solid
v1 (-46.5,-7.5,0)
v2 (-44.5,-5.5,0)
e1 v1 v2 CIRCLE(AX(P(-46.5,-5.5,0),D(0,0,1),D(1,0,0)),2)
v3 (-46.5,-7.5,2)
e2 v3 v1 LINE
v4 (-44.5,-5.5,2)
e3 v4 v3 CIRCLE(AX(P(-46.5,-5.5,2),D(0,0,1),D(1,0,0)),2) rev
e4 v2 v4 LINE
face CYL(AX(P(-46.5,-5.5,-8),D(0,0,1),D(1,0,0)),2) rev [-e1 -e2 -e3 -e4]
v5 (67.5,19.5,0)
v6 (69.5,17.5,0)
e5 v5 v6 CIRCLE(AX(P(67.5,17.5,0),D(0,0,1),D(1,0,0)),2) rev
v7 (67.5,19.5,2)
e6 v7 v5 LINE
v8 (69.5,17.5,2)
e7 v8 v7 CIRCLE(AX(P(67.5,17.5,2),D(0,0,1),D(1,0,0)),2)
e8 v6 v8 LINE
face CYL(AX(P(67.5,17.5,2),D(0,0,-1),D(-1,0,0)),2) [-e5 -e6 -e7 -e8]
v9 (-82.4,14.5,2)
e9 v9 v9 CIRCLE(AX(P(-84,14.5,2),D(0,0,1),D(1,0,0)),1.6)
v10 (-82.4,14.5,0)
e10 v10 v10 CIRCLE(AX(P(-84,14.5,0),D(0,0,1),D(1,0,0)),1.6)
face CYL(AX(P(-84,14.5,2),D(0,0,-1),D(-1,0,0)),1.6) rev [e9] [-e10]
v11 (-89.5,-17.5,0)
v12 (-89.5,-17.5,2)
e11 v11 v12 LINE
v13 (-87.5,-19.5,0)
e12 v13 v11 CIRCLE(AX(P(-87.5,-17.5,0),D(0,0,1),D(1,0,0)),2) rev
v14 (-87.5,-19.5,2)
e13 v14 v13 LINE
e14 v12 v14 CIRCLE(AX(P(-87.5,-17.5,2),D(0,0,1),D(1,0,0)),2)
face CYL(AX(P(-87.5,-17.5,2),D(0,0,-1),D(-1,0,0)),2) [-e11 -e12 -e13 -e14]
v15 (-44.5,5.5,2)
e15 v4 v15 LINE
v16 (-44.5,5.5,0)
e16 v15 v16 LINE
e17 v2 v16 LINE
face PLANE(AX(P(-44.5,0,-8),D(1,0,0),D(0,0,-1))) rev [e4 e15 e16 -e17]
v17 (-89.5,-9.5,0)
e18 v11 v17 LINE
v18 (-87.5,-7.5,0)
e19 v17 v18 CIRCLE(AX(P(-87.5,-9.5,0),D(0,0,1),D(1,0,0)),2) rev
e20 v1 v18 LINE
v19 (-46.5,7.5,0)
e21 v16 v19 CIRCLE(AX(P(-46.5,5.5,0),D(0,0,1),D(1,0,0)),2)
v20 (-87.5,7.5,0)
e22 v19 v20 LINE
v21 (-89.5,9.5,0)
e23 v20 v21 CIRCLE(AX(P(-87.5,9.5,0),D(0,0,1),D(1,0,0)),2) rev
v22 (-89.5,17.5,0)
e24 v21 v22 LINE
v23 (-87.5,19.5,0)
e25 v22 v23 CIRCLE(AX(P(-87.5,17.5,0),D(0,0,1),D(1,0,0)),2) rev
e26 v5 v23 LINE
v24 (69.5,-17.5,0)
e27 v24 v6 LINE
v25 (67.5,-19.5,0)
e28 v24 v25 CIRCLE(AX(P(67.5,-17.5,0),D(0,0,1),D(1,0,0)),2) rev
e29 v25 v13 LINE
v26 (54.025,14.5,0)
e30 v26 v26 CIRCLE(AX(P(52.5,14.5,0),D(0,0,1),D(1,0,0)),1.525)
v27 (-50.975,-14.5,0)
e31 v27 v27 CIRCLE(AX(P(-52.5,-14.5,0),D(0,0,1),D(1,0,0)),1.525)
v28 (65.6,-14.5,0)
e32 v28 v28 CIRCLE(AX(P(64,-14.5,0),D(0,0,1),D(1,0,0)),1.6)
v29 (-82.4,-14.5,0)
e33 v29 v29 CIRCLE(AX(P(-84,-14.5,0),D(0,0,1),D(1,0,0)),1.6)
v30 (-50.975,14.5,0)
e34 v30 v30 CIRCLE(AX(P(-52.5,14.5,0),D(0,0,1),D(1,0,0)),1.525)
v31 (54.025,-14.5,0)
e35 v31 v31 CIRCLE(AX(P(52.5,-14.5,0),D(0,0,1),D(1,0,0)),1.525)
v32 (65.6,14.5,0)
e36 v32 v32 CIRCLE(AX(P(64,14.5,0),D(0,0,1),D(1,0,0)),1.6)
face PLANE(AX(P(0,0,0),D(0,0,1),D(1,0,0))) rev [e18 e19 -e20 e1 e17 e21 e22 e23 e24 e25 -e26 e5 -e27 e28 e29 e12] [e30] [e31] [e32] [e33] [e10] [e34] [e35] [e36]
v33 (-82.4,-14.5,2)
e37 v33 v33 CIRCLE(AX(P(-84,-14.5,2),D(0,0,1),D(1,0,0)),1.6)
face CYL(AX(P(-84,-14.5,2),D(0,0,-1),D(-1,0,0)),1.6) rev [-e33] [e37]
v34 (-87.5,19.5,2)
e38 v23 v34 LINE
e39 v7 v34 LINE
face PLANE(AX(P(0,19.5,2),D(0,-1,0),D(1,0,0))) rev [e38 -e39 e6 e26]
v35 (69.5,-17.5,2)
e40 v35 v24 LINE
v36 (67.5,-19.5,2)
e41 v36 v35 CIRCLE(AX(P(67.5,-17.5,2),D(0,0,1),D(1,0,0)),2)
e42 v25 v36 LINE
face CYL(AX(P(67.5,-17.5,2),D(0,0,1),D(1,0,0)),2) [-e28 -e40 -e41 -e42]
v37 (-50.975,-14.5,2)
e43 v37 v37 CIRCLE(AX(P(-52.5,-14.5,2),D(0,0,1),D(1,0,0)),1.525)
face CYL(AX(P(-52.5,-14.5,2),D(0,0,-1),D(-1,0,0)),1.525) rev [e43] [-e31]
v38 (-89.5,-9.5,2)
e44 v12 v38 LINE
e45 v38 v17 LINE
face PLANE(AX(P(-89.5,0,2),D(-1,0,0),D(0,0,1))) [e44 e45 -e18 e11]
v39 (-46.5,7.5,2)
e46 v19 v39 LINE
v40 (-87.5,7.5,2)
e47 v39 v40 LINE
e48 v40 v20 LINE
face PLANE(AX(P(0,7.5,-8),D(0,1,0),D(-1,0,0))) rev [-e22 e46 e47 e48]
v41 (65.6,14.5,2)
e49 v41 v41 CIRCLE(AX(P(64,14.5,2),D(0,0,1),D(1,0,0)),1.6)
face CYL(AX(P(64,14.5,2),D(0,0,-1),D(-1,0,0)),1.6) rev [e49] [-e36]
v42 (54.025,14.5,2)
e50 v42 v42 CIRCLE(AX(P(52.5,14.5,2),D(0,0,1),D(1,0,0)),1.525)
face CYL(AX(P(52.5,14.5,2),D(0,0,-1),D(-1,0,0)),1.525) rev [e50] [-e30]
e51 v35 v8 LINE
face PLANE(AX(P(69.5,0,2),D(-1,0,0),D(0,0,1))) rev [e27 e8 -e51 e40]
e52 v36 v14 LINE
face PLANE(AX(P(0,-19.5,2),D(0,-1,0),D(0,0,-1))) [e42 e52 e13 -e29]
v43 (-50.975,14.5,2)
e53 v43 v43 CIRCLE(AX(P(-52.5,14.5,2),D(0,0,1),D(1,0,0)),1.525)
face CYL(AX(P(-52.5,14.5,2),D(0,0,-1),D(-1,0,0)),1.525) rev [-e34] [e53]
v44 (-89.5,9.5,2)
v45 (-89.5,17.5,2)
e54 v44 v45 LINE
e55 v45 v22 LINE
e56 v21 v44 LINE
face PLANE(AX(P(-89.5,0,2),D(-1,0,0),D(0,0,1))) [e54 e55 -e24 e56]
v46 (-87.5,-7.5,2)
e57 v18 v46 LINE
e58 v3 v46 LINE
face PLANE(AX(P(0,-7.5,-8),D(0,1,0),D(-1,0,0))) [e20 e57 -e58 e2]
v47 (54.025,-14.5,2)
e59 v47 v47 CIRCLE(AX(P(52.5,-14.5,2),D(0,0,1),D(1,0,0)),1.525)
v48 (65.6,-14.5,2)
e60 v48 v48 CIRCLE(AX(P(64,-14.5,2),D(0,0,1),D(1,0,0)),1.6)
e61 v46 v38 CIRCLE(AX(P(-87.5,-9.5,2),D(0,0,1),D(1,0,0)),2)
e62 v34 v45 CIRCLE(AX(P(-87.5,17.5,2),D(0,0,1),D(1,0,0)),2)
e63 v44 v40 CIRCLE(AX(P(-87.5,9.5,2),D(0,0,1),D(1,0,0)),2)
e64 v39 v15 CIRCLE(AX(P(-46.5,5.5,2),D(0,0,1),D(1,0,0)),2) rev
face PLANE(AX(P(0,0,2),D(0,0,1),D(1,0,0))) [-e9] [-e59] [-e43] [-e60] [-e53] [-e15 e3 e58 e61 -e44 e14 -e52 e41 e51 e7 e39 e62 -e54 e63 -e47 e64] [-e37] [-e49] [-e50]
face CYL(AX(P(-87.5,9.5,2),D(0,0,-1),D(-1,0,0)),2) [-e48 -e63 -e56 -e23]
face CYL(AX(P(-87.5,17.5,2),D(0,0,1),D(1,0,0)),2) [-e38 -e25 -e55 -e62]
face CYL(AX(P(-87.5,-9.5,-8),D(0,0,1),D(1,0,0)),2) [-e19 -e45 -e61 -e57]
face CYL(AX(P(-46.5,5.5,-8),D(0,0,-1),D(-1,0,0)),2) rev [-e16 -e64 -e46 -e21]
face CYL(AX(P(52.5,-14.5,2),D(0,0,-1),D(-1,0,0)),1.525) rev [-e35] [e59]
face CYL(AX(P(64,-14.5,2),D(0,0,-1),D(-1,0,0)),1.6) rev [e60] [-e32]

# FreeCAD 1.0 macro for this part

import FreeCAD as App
import Part
import Sketcher
from FreeCAD import Vector


def edges_at(feature, points):
    """Names of the edges that pass closest to the given points."""
    edges = feature.Shape.Edges
    near = lambda p: min(range(len(edges)), key=lambda i: edges[i].distToShape(Part.Vertex(*p))[0])
    return sorted({f"Edge{near(p) + 1}" for p in points})

doc = App.newDocument("Part")
body = doc.addObject("PartDesign::Body", "Body")

sketch1 = doc.addObject("Sketcher::SketchObject", "Sketch")
body.addObject(sketch1)
sketch1.AttachmentSupport = (doc.XY_Plane, [""])
sketch1.MapMode = "FlatFace"
sketch1.addGeometry(Part.LineSegment(Vector(-89.5, 19.5, 0), Vector(-89.5, -19.5, 0)), False)
sketch1.addGeometry(Part.LineSegment(Vector(-89.5, -19.5, 0), Vector(69.5, -19.5, 0)), False)
sketch1.addGeometry(Part.LineSegment(Vector(69.5, -19.5, 0), Vector(69.5, 19.5, 0)), False)
sketch1.addGeometry(Part.LineSegment(Vector(69.5, 19.5, 0), Vector(-89.5, 19.5, 0)), False)
sketch1.addGeometry(Part.Circle(Vector(-84, -14.5, 0), Vector(0, 0, 1), 1.6), False)
sketch1.addGeometry(Part.Circle(Vector(-84, 14.5, 0), Vector(0, 0, 1), 1.6), False)
sketch1.addGeometry(Part.Circle(Vector(52.5, 14.5, 0), Vector(0, 0, 1), 1.5), False)
sketch1.addGeometry(Part.Circle(Vector(-52.5, -14.5, 0), Vector(0, 0, 1), 1.5), False)
sketch1.addGeometry(Part.Circle(Vector(52.5, -14.5, 0), Vector(0, 0, 1), 1.5), False)
sketch1.addGeometry(Part.Circle(Vector(-52.5, 14.5, 0), Vector(0, 0, 1), 1.5), False)
sketch1.addGeometry(Part.Circle(Vector(64, 14.5, 0), Vector(0, 0, 1), 1.6), False)
sketch1.addGeometry(Part.Circle(Vector(64, -14.5, 0), Vector(0, 0, 1), 1.6), False)
sketch1.addConstraint(Sketcher.Constraint("Coincident", 0, 2, 1, 1))
sketch1.addConstraint(Sketcher.Constraint("Coincident", 1, 2, 2, 1))
sketch1.addConstraint(Sketcher.Constraint("Coincident", 2, 2, 3, 1))
sketch1.addConstraint(Sketcher.Constraint("Coincident", 3, 2, 0, 1))
sketch1.addConstraint(Sketcher.Constraint("Vertical", 0))
sketch1.addConstraint(Sketcher.Constraint("Horizontal", 1))
sketch1.addConstraint(Sketcher.Constraint("Vertical", 2))
sketch1.addConstraint(Sketcher.Constraint("Horizontal", 3))
sketch1.addConstraint(Sketcher.Constraint("Equal", 4, 5))
sketch1.addConstraint(Sketcher.Constraint("Equal", 6, 7))
sketch1.addConstraint(Sketcher.Constraint("Equal", 7, 8))
sketch1.addConstraint(Sketcher.Constraint("Equal", 8, 9))
sketch1.addConstraint(Sketcher.Constraint("Equal", 5, 10))
sketch1.addConstraint(Sketcher.Constraint("Equal", 10, 11))
sketch1.addConstraint(Sketcher.Constraint("Symmetric", 6, 3, 7, 3, -1, 1))
sketch1.addConstraint(Sketcher.Constraint("Symmetric", 8, 3, 9, 3, -1, 1))
sketch1.addConstraint(Sketcher.Constraint("Symmetric", 7, 3, 8, 3, -2))
sketch1.addConstraint(Sketcher.Constraint("Symmetric", 4, 3, 5, 3, -1))
sketch1.addConstraint(Sketcher.Constraint("Symmetric", 10, 3, 11, 3, -1))
sketch1.addConstraint(Sketcher.Constraint("Horizontal", 5, 3, 6, 3))
sketch1.addConstraint(Sketcher.Constraint("Horizontal", 9, 3, 10, 3))
sketch1.addConstraint(Sketcher.Constraint("Diameter", 4, 3.2))
sketch1.addConstraint(Sketcher.Constraint("Diameter", 6, 3.05))
sketch1.addConstraint(Sketcher.Constraint("DistanceX", 1, 1, 1, 2, 159.0))
sketch1.addConstraint(Sketcher.Constraint("DistanceY", 0, 2, 0, 1, 39.0))
sketch1.addConstraint(Sketcher.Constraint("DistanceX", 4, 3, -1, 1, 84.0))
sketch1.addConstraint(Sketcher.Constraint("DistanceX", -1, 1, 10, 3, 64.0))
sketch1.addConstraint(Sketcher.Constraint("DistanceY", 4, 3, 5, 3, 29.0))
sketch1.addConstraint(Sketcher.Constraint("DistanceX", 7, 3, 6, 3, 105.0))
sketch1.addConstraint(Sketcher.Constraint("DistanceY", 0, 2, 4, 3, 5.0))
sketch1.addConstraint(Sketcher.Constraint("DistanceX", 0, 2, 7, 3, 37.0))
pad1 = doc.addObject("PartDesign::Pad", "Pad")
body.addObject(pad1)
pad1.Profile = sketch1
pad1.Length = 2

sketch2 = doc.addObject("Sketcher::SketchObject", "Sketch001")
body.addObject(sketch2)
sketch2.AttachmentSupport = (doc.XY_Plane, [""])
sketch2.MapMode = "FlatFace"
sketch2.AttachmentOffset = App.Placement(Vector(0, 0, 2), App.Rotation())
sketch2.addGeometry(Part.LineSegment(Vector(-90, 8, 0), Vector(-90, -8, 0)), False)
sketch2.addGeometry(Part.LineSegment(Vector(-90, -8, 0), Vector(-44, -8, 0)), False)
sketch2.addGeometry(Part.LineSegment(Vector(-44, -8, 0), Vector(-44, 8, 0)), False)
sketch2.addGeometry(Part.LineSegment(Vector(-44, 8, 0), Vector(-90, 8, 0)), False)
sketch2.addConstraint(Sketcher.Constraint("Coincident", 0, 2, 1, 1))
sketch2.addConstraint(Sketcher.Constraint("Coincident", 1, 2, 2, 1))
sketch2.addConstraint(Sketcher.Constraint("Coincident", 2, 2, 3, 1))
sketch2.addConstraint(Sketcher.Constraint("Coincident", 3, 2, 0, 1))
sketch2.addConstraint(Sketcher.Constraint("Vertical", 0))
sketch2.addConstraint(Sketcher.Constraint("Horizontal", 1))
sketch2.addConstraint(Sketcher.Constraint("Vertical", 2))
sketch2.addConstraint(Sketcher.Constraint("Horizontal", 3))
sketch2.addConstraint(Sketcher.Constraint("DistanceX", 1, 1, 1, 2, 45.0))
sketch2.addConstraint(Sketcher.Constraint("DistanceY", 0, 2, 0, 1, 15.0))
sketch2.addConstraint(Sketcher.Constraint("DistanceX", 0, 2, -1, 1, 89.5))
sketch2.addConstraint(Sketcher.Constraint("DistanceY", 0, 2, -1, 1, 7.5))
pocket1 = doc.addObject("PartDesign::Pocket", "Pocket")
body.addObject(pocket1)
pocket1.Profile = sketch2
pocket1.Length = 10
doc.recompute()

fillet = doc.addObject("PartDesign::Fillet", "Fillet")
body.addObject(fillet)
fillet.Base = (pocket1, edges_at(pocket1, [
    (-89.5, 19.5, 1),
    (69.5, 19.5, 1),
    (69.5, -19.5, 1),
    (-89.5, -19.5, 1),
    (-44.5, -7.5, 1),
    (-89.5, -7.5, 1),
    (-89.5, 7.5, 1),
    (-44.5, 7.5, 1),
]))
fillet.Radius = 2

doc.recompute()
